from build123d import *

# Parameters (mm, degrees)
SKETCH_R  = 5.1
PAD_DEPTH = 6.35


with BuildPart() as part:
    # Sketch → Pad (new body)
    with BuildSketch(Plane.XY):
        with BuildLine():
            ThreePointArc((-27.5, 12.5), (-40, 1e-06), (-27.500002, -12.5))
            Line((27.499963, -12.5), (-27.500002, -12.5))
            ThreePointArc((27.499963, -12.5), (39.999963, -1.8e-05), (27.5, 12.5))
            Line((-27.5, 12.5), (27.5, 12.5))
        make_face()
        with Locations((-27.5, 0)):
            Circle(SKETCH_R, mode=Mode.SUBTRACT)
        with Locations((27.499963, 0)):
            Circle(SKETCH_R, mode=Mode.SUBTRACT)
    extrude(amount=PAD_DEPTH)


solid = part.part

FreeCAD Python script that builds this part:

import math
import FreeCAD as App
import Part
import Sketcher
Q = App.Units.Quantity

doc = App.newDocument("Part")
body = doc.addObject("PartDesign::Body", "Body")

# Sketch on XY plane
sketch1 = body.newObject("Sketcher::SketchObject", "Sketch")
sketch1.AttachmentSupport = (doc.getObject("XY_Plane"), [""])
sketch1.MapMode = "FlatFace"
sketch1.addGeometry(Part.ArcOfCircle(Part.Circle(App.Vector(-28, 0, 0), App.Vector(0, 0, 1), 12), math.radians(90), math.radians(270)), False)
sketch1.addGeometry(Part.LineSegment(App.Vector(-28, -12, 0), App.Vector(27, -12, 0)), False)
sketch1.addGeometry(Part.ArcOfCircle(Part.Circle(App.Vector(27, 0, 0), App.Vector(0, 0, 1), 12), math.radians(-90), math.radians(90)), False)
sketch1.addGeometry(Part.LineSegment(App.Vector(28, 12, 0), App.Vector(-28, 12, 0)), False)
sketch1.addGeometry(Part.Circle(App.Vector(-28, 0, 0), App.Vector(0, 0, 1), 5), False)
sketch1.addGeometry(Part.Circle(App.Vector(27, 0, 0), App.Vector(0, 0, 1), 5), False)
sketch1.addConstraint(Sketcher.Constraint("Tangent", 0, 2, 1, 1))
sketch1.addConstraint(Sketcher.Constraint("Tangent", 1, 2, 2, 1))
sketch1.addConstraint(Sketcher.Constraint("Coincident", 2, 2, 3, 1))
sketch1.addConstraint(Sketcher.Constraint("Tangent", 3, 2, 0, 1))
sketch1.addConstraint(Sketcher.Constraint("Horizontal", 1))
sketch1.addConstraint(Sketcher.Constraint("Horizontal", 3))
sketch1.addConstraint(Sketcher.Constraint("Coincident", 4, 3, 0, 3))
sketch1.addConstraint(Sketcher.Constraint("Coincident", 5, 3, 2, 3))
sketch1.addConstraint(Sketcher.Constraint("Equal", 4, 5))
sketch1.addConstraint(Sketcher.Constraint("Symmetric", 0, 2, 2, 2, -1, 1))
sketch1.addConstraint(Sketcher.Constraint("Diameter", 4, Q("10.2 mm")))
sketch1.addConstraint(Sketcher.Constraint("Radius", 0, Q("12.5 mm")))
sketch1.addConstraint(Sketcher.Constraint("DistanceX", 3, 2, 3, 1, Q("55 mm")))
sketch1.addConstraint(Sketcher.Constraint("DistanceX", 1, 1, 1, 2, Q("54.999965 mm")))
pad1 = body.newObject("PartDesign::Pad", "Pad")
pad1.Profile = sketch1
pad1.Length = 6.35

doc.recompute()
